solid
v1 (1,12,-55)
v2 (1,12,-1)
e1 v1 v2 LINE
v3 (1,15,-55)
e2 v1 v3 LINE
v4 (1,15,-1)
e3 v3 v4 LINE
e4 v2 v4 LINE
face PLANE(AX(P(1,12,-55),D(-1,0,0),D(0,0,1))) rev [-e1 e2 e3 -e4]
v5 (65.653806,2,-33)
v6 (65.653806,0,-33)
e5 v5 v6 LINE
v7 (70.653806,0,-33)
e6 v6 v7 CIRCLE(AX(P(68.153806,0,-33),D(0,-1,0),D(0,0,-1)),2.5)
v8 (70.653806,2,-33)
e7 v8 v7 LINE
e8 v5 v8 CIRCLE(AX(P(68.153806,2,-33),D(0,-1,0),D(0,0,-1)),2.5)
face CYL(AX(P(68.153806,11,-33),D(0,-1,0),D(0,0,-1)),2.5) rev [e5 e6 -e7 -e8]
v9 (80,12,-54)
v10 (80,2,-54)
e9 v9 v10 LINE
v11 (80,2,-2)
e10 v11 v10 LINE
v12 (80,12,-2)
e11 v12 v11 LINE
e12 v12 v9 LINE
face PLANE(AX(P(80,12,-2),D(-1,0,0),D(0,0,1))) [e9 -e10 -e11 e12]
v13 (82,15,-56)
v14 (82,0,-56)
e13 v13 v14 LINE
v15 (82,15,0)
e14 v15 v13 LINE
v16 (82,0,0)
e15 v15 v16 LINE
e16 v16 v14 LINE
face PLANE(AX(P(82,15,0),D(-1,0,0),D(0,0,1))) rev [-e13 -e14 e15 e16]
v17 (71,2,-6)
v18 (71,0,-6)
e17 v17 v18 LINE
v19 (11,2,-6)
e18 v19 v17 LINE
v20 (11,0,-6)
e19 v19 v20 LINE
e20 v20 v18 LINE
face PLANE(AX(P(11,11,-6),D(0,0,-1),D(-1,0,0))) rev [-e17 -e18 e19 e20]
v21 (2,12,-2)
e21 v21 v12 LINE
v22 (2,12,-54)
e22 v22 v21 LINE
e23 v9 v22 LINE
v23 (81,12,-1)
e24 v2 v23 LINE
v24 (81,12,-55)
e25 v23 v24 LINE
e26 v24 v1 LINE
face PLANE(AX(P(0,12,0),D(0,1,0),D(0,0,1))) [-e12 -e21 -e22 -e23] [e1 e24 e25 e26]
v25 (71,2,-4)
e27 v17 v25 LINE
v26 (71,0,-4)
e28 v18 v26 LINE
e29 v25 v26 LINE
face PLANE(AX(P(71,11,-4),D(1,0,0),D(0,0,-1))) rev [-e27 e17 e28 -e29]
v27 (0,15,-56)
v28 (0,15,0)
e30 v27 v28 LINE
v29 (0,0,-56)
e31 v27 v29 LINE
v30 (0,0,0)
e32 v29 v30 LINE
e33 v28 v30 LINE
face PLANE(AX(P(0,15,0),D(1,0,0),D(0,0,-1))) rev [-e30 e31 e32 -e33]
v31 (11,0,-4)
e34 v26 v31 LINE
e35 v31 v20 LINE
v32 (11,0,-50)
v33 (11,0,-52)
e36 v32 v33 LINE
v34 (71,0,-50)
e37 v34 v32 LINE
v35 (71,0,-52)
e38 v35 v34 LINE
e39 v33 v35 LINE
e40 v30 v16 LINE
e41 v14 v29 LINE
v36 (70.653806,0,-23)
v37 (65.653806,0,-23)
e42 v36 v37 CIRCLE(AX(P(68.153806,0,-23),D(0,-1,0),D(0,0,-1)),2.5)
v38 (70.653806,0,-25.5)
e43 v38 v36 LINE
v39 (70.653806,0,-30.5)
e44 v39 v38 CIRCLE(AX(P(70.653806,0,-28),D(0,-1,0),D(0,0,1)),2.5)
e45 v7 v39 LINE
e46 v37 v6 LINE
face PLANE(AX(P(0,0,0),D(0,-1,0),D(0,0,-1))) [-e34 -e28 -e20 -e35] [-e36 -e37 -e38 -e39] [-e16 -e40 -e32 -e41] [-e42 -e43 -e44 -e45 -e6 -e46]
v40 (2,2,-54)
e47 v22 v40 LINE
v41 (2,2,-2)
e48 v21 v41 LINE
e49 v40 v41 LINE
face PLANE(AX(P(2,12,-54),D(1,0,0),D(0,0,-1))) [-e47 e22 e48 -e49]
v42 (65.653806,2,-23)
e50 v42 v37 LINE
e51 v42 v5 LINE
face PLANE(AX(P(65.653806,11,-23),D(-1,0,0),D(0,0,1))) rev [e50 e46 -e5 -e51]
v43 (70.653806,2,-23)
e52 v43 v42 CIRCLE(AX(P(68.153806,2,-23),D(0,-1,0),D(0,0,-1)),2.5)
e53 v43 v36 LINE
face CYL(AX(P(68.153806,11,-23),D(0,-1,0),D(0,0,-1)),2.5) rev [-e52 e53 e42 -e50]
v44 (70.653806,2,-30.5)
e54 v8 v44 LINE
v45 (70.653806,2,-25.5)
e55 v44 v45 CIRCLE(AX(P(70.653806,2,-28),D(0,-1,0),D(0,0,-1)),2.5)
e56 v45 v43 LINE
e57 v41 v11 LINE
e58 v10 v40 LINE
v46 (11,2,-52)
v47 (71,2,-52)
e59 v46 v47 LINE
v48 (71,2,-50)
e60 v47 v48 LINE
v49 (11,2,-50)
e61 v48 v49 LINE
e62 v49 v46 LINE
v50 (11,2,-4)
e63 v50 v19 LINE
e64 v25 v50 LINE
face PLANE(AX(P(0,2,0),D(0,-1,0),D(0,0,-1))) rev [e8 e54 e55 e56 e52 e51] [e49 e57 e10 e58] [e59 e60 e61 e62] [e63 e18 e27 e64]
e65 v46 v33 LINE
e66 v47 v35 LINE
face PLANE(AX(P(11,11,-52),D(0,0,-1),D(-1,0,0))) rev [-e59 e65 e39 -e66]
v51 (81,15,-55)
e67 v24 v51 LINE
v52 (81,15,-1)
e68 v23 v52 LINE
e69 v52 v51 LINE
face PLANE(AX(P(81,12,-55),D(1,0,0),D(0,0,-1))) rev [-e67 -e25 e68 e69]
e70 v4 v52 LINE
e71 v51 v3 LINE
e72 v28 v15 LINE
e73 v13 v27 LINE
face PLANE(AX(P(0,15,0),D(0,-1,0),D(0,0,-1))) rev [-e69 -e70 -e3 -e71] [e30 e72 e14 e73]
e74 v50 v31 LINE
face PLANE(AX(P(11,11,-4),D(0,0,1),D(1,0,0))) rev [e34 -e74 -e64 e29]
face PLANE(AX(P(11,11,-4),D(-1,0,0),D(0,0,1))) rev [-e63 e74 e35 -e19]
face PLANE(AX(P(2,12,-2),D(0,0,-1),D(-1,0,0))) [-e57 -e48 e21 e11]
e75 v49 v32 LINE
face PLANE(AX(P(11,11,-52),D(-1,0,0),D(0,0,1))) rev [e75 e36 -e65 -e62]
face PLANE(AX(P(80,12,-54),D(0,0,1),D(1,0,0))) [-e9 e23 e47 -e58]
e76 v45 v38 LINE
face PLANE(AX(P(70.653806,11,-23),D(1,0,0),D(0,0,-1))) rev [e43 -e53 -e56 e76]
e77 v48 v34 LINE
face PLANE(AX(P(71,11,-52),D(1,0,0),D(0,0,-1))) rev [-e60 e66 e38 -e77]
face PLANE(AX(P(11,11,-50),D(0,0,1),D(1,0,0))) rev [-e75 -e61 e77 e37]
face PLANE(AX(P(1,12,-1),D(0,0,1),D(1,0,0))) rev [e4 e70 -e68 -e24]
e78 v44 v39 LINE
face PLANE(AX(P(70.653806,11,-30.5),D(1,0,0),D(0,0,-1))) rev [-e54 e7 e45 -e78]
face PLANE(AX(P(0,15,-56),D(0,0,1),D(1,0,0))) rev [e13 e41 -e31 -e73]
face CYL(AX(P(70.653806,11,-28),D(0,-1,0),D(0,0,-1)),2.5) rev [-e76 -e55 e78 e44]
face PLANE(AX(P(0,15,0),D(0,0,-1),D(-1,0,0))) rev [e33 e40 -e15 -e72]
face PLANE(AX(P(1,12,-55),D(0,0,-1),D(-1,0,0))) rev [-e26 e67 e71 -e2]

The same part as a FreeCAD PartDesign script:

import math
import FreeCAD as App
import Part
import Sketcher


def add_polygon(sketch, points):
    """Adds a closed chain of lines whose ends are joined by coincident constraints."""
    first, n = sketch.GeometryCount, len(points)
    for a, b in zip(points, points[1:] + points[:1]):
        sketch.addGeometry(Part.LineSegment(App.Vector(*a, 0), App.Vector(*b, 0)), False)
    for i in range(n):
        sketch.addConstraint(Sketcher.Constraint("Coincident", first + i, 2, first + (i + 1) % n, 1))

doc = App.newDocument("Part")
body = doc.addObject("PartDesign::Body", "Body")

sketch1 = doc.addObject("Sketcher::SketchObject", "Sketch")
body.addObject(sketch1)
sketch1.AttachmentSupport = (doc.XZ_Plane, [""])
sketch1.MapMode = "FlatFace"
add_polygon(sketch1, [(0, -56), (0, 0), (82, 0), (82, -56)])
sketch1.addConstraint([
    Sketcher.Constraint("Vertical", 0),
    Sketcher.Constraint("Horizontal", 1),
    Sketcher.Constraint("Vertical", 2),
    Sketcher.Constraint("Horizontal", 3),
    Sketcher.Constraint("Coincident", 0, 2, -1, 1),
    Sketcher.Constraint("DistanceX", 1, 1, 1, 2, 82.0),
    Sketcher.Constraint("DistanceY", 0, 1, 0, 2, 56.0),
])
pad1 = doc.addObject("PartDesign::Pad", "Pad")
body.addObject(pad1)
pad1.Profile = sketch1
pad1.Length = 15
pad1.Reversed = True

sketch2 = doc.addObject("Sketcher::SketchObject", "Sketch001")
body.addObject(sketch2)
sketch2.AttachmentSupport = (doc.XZ_Plane, [""])
sketch2.MapMode = "FlatFace"
sketch2.AttachmentOffset = App.Placement(App.Vector(0, 0, -15), App.Rotation())
add_polygon(sketch2, [(1, -55), (1, -1), (81, -1), (81, -55)])
sketch2.addConstraint([
    Sketcher.Constraint("Vertical", 0),
    Sketcher.Constraint("Horizontal", 1),
    Sketcher.Constraint("Vertical", 2),
    Sketcher.Constraint("Horizontal", 3),
    Sketcher.Constraint("DistanceX", 1, 1, 1, 2, 80.0),
    Sketcher.Constraint("DistanceY", 0, 1, 0, 2, 54.0),
    Sketcher.Constraint("DistanceX", -1, 1, 0, 2, 1.0),
    Sketcher.Constraint("DistanceY", 0, 2, -1, 1, 1.0),
])
pocket1 = doc.addObject("PartDesign::Pocket", "Pocket")
body.addObject(pocket1)
pocket1.Profile = sketch2
pocket1.Length = 3
pocket1.Reversed = True

sketch3 = doc.addObject("Sketcher::SketchObject", "Sketch002")
body.addObject(sketch3)
sketch3.AttachmentSupport = (doc.XZ_Plane, [""])
sketch3.MapMode = "FlatFace"
sketch3.AttachmentOffset = App.Placement(App.Vector(0, 0, -12), App.Rotation())
add_polygon(sketch3, [(80, -2), (80, -54), (2, -54), (2, -2)])
sketch3.addConstraint([
    Sketcher.Constraint("Vertical", 0),
    Sketcher.Constraint("Horizontal", 1),
    Sketcher.Constraint("Vertical", 2),
    Sketcher.Constraint("Horizontal", 3),
    Sketcher.Constraint("DistanceX", 1, 2, 1, 1, 78.0),
    Sketcher.Constraint("DistanceY", 0, 2, 0, 1, 52.0),
    Sketcher.Constraint("DistanceX", -1, 1, 0, 2, 80.0),
    Sketcher.Constraint("DistanceY", 0, 2, -1, 1, 54.0),
])
pocket2 = doc.addObject("PartDesign::Pocket", "Pocket001")
body.addObject(pocket2)
pocket2.Profile = sketch3
pocket2.Length = 10
pocket2.Reversed = True

sketch4 = doc.addObject("Sketcher::SketchObject", "Sketch003")
body.addObject(sketch4)
sketch4.AttachmentSupport = (doc.XZ_Plane, [""])
sketch4.MapMode = "FlatFace"
add_polygon(sketch4, [(11, -4), (11, -6), (71, -6), (71, -4)])
add_polygon(sketch4, [(11, -50), (11, -52), (71, -52), (71, -50)])
sketch4.addGeometry(Part.LineSegment(App.Vector(70.7, -25.5, 0), App.Vector(70.7, -23, 0)), False)
sketch4.addGeometry(Part.ArcOfCircle(Part.Circle(App.Vector(68.2, -23, 0), App.Vector(0, 0, 1), 2.5), math.radians(0), math.radians(180)), False)
sketch4.addGeometry(Part.LineSegment(App.Vector(65.7, -23, 0), App.Vector(65.7, -33, 0)), False)
sketch4.addGeometry(Part.ArcOfCircle(Part.Circle(App.Vector(68.2, -33, 0), App.Vector(0, 0, 1), 2.5), math.radians(180), math.radians(360)), False)
sketch4.addGeometry(Part.LineSegment(App.Vector(70.7, -33, 0), App.Vector(70.7, -30.5, 0)), False)
sketch4.addGeometry(Part.ArcOfCircle(Part.Circle(App.Vector(70.7, -28, 0), App.Vector(0, 0, 1), 2.5), math.radians(-90), math.radians(90)), False)
sketch4.addConstraint([
    Sketcher.Constraint("Tangent", 8, 2, 9, 1),
    Sketcher.Constraint("Tangent", 9, 2, 10, 1),
    Sketcher.Constraint("Tangent", 10, 2, 11, 1),
    Sketcher.Constraint("Tangent", 11, 2, 12, 1),
    Sketcher.Constraint("Coincident", 12, 2, 13, 1),
    Sketcher.Constraint("Coincident", 13, 2, 8, 1),
    Sketcher.Constraint("Vertical", 0),
    Sketcher.Constraint("Horizontal", 1),
    Sketcher.Constraint("Vertical", 2),
    Sketcher.Constraint("Horizontal", 3),
    Sketcher.Constraint("Vertical", 4),
    Sketcher.Constraint("Horizontal", 5),
    Sketcher.Constraint("Vertical", 6),
    Sketcher.Constraint("Horizontal", 7),
    Sketcher.Constraint("Vertical", 8),
    Sketcher.Constraint("Vertical", 10),
    Sketcher.Constraint("Vertical", 12),
    Sketcher.Constraint("Equal", 9, 11),
    Sketcher.Constraint("Equal", 11, 13),
    Sketcher.Constraint("Vertical", 3, 2, 4, 2),
    Sketcher.Constraint("Vertical", 2, 2, 5, 2),
    Sketcher.Constraint("Vertical", 13, 3, 8, 2),
    Sketcher.Constraint("Equal", 2, 4),
    Sketcher.Constraint("Equal", 8, 12),
    Sketcher.Constraint("Radius", 9, 2.5),
    Sketcher.Constraint("DistanceX", 1, 1, 1, 2, 60.0),
    Sketcher.Constraint("DistanceY", 0, 2, 0, 1, 2.0),
    Sketcher.Constraint("DistanceY", 10, 2, 10, 1, 10.0),
    Sketcher.Constraint("DistanceY", 9, 3, -1, 1, 23.0),
    Sketcher.Constraint("DistanceX", -1, 1, 0, 2, 11.0),
    Sketcher.Constraint("DistanceY", 0, 2, -1, 1, 6.0),
    Sketcher.Constraint("DistanceY", 4, 2, -1, 1, 52.0),
    Sketcher.Constraint("DistanceX", -1, 1, 9, 3, 68.153806),
])
pocket3 = doc.addObject("PartDesign::Pocket", "Pocket002")
body.addObject(pocket3)
pocket3.Profile = sketch4
pocket3.Length = 11

doc.recompute()
